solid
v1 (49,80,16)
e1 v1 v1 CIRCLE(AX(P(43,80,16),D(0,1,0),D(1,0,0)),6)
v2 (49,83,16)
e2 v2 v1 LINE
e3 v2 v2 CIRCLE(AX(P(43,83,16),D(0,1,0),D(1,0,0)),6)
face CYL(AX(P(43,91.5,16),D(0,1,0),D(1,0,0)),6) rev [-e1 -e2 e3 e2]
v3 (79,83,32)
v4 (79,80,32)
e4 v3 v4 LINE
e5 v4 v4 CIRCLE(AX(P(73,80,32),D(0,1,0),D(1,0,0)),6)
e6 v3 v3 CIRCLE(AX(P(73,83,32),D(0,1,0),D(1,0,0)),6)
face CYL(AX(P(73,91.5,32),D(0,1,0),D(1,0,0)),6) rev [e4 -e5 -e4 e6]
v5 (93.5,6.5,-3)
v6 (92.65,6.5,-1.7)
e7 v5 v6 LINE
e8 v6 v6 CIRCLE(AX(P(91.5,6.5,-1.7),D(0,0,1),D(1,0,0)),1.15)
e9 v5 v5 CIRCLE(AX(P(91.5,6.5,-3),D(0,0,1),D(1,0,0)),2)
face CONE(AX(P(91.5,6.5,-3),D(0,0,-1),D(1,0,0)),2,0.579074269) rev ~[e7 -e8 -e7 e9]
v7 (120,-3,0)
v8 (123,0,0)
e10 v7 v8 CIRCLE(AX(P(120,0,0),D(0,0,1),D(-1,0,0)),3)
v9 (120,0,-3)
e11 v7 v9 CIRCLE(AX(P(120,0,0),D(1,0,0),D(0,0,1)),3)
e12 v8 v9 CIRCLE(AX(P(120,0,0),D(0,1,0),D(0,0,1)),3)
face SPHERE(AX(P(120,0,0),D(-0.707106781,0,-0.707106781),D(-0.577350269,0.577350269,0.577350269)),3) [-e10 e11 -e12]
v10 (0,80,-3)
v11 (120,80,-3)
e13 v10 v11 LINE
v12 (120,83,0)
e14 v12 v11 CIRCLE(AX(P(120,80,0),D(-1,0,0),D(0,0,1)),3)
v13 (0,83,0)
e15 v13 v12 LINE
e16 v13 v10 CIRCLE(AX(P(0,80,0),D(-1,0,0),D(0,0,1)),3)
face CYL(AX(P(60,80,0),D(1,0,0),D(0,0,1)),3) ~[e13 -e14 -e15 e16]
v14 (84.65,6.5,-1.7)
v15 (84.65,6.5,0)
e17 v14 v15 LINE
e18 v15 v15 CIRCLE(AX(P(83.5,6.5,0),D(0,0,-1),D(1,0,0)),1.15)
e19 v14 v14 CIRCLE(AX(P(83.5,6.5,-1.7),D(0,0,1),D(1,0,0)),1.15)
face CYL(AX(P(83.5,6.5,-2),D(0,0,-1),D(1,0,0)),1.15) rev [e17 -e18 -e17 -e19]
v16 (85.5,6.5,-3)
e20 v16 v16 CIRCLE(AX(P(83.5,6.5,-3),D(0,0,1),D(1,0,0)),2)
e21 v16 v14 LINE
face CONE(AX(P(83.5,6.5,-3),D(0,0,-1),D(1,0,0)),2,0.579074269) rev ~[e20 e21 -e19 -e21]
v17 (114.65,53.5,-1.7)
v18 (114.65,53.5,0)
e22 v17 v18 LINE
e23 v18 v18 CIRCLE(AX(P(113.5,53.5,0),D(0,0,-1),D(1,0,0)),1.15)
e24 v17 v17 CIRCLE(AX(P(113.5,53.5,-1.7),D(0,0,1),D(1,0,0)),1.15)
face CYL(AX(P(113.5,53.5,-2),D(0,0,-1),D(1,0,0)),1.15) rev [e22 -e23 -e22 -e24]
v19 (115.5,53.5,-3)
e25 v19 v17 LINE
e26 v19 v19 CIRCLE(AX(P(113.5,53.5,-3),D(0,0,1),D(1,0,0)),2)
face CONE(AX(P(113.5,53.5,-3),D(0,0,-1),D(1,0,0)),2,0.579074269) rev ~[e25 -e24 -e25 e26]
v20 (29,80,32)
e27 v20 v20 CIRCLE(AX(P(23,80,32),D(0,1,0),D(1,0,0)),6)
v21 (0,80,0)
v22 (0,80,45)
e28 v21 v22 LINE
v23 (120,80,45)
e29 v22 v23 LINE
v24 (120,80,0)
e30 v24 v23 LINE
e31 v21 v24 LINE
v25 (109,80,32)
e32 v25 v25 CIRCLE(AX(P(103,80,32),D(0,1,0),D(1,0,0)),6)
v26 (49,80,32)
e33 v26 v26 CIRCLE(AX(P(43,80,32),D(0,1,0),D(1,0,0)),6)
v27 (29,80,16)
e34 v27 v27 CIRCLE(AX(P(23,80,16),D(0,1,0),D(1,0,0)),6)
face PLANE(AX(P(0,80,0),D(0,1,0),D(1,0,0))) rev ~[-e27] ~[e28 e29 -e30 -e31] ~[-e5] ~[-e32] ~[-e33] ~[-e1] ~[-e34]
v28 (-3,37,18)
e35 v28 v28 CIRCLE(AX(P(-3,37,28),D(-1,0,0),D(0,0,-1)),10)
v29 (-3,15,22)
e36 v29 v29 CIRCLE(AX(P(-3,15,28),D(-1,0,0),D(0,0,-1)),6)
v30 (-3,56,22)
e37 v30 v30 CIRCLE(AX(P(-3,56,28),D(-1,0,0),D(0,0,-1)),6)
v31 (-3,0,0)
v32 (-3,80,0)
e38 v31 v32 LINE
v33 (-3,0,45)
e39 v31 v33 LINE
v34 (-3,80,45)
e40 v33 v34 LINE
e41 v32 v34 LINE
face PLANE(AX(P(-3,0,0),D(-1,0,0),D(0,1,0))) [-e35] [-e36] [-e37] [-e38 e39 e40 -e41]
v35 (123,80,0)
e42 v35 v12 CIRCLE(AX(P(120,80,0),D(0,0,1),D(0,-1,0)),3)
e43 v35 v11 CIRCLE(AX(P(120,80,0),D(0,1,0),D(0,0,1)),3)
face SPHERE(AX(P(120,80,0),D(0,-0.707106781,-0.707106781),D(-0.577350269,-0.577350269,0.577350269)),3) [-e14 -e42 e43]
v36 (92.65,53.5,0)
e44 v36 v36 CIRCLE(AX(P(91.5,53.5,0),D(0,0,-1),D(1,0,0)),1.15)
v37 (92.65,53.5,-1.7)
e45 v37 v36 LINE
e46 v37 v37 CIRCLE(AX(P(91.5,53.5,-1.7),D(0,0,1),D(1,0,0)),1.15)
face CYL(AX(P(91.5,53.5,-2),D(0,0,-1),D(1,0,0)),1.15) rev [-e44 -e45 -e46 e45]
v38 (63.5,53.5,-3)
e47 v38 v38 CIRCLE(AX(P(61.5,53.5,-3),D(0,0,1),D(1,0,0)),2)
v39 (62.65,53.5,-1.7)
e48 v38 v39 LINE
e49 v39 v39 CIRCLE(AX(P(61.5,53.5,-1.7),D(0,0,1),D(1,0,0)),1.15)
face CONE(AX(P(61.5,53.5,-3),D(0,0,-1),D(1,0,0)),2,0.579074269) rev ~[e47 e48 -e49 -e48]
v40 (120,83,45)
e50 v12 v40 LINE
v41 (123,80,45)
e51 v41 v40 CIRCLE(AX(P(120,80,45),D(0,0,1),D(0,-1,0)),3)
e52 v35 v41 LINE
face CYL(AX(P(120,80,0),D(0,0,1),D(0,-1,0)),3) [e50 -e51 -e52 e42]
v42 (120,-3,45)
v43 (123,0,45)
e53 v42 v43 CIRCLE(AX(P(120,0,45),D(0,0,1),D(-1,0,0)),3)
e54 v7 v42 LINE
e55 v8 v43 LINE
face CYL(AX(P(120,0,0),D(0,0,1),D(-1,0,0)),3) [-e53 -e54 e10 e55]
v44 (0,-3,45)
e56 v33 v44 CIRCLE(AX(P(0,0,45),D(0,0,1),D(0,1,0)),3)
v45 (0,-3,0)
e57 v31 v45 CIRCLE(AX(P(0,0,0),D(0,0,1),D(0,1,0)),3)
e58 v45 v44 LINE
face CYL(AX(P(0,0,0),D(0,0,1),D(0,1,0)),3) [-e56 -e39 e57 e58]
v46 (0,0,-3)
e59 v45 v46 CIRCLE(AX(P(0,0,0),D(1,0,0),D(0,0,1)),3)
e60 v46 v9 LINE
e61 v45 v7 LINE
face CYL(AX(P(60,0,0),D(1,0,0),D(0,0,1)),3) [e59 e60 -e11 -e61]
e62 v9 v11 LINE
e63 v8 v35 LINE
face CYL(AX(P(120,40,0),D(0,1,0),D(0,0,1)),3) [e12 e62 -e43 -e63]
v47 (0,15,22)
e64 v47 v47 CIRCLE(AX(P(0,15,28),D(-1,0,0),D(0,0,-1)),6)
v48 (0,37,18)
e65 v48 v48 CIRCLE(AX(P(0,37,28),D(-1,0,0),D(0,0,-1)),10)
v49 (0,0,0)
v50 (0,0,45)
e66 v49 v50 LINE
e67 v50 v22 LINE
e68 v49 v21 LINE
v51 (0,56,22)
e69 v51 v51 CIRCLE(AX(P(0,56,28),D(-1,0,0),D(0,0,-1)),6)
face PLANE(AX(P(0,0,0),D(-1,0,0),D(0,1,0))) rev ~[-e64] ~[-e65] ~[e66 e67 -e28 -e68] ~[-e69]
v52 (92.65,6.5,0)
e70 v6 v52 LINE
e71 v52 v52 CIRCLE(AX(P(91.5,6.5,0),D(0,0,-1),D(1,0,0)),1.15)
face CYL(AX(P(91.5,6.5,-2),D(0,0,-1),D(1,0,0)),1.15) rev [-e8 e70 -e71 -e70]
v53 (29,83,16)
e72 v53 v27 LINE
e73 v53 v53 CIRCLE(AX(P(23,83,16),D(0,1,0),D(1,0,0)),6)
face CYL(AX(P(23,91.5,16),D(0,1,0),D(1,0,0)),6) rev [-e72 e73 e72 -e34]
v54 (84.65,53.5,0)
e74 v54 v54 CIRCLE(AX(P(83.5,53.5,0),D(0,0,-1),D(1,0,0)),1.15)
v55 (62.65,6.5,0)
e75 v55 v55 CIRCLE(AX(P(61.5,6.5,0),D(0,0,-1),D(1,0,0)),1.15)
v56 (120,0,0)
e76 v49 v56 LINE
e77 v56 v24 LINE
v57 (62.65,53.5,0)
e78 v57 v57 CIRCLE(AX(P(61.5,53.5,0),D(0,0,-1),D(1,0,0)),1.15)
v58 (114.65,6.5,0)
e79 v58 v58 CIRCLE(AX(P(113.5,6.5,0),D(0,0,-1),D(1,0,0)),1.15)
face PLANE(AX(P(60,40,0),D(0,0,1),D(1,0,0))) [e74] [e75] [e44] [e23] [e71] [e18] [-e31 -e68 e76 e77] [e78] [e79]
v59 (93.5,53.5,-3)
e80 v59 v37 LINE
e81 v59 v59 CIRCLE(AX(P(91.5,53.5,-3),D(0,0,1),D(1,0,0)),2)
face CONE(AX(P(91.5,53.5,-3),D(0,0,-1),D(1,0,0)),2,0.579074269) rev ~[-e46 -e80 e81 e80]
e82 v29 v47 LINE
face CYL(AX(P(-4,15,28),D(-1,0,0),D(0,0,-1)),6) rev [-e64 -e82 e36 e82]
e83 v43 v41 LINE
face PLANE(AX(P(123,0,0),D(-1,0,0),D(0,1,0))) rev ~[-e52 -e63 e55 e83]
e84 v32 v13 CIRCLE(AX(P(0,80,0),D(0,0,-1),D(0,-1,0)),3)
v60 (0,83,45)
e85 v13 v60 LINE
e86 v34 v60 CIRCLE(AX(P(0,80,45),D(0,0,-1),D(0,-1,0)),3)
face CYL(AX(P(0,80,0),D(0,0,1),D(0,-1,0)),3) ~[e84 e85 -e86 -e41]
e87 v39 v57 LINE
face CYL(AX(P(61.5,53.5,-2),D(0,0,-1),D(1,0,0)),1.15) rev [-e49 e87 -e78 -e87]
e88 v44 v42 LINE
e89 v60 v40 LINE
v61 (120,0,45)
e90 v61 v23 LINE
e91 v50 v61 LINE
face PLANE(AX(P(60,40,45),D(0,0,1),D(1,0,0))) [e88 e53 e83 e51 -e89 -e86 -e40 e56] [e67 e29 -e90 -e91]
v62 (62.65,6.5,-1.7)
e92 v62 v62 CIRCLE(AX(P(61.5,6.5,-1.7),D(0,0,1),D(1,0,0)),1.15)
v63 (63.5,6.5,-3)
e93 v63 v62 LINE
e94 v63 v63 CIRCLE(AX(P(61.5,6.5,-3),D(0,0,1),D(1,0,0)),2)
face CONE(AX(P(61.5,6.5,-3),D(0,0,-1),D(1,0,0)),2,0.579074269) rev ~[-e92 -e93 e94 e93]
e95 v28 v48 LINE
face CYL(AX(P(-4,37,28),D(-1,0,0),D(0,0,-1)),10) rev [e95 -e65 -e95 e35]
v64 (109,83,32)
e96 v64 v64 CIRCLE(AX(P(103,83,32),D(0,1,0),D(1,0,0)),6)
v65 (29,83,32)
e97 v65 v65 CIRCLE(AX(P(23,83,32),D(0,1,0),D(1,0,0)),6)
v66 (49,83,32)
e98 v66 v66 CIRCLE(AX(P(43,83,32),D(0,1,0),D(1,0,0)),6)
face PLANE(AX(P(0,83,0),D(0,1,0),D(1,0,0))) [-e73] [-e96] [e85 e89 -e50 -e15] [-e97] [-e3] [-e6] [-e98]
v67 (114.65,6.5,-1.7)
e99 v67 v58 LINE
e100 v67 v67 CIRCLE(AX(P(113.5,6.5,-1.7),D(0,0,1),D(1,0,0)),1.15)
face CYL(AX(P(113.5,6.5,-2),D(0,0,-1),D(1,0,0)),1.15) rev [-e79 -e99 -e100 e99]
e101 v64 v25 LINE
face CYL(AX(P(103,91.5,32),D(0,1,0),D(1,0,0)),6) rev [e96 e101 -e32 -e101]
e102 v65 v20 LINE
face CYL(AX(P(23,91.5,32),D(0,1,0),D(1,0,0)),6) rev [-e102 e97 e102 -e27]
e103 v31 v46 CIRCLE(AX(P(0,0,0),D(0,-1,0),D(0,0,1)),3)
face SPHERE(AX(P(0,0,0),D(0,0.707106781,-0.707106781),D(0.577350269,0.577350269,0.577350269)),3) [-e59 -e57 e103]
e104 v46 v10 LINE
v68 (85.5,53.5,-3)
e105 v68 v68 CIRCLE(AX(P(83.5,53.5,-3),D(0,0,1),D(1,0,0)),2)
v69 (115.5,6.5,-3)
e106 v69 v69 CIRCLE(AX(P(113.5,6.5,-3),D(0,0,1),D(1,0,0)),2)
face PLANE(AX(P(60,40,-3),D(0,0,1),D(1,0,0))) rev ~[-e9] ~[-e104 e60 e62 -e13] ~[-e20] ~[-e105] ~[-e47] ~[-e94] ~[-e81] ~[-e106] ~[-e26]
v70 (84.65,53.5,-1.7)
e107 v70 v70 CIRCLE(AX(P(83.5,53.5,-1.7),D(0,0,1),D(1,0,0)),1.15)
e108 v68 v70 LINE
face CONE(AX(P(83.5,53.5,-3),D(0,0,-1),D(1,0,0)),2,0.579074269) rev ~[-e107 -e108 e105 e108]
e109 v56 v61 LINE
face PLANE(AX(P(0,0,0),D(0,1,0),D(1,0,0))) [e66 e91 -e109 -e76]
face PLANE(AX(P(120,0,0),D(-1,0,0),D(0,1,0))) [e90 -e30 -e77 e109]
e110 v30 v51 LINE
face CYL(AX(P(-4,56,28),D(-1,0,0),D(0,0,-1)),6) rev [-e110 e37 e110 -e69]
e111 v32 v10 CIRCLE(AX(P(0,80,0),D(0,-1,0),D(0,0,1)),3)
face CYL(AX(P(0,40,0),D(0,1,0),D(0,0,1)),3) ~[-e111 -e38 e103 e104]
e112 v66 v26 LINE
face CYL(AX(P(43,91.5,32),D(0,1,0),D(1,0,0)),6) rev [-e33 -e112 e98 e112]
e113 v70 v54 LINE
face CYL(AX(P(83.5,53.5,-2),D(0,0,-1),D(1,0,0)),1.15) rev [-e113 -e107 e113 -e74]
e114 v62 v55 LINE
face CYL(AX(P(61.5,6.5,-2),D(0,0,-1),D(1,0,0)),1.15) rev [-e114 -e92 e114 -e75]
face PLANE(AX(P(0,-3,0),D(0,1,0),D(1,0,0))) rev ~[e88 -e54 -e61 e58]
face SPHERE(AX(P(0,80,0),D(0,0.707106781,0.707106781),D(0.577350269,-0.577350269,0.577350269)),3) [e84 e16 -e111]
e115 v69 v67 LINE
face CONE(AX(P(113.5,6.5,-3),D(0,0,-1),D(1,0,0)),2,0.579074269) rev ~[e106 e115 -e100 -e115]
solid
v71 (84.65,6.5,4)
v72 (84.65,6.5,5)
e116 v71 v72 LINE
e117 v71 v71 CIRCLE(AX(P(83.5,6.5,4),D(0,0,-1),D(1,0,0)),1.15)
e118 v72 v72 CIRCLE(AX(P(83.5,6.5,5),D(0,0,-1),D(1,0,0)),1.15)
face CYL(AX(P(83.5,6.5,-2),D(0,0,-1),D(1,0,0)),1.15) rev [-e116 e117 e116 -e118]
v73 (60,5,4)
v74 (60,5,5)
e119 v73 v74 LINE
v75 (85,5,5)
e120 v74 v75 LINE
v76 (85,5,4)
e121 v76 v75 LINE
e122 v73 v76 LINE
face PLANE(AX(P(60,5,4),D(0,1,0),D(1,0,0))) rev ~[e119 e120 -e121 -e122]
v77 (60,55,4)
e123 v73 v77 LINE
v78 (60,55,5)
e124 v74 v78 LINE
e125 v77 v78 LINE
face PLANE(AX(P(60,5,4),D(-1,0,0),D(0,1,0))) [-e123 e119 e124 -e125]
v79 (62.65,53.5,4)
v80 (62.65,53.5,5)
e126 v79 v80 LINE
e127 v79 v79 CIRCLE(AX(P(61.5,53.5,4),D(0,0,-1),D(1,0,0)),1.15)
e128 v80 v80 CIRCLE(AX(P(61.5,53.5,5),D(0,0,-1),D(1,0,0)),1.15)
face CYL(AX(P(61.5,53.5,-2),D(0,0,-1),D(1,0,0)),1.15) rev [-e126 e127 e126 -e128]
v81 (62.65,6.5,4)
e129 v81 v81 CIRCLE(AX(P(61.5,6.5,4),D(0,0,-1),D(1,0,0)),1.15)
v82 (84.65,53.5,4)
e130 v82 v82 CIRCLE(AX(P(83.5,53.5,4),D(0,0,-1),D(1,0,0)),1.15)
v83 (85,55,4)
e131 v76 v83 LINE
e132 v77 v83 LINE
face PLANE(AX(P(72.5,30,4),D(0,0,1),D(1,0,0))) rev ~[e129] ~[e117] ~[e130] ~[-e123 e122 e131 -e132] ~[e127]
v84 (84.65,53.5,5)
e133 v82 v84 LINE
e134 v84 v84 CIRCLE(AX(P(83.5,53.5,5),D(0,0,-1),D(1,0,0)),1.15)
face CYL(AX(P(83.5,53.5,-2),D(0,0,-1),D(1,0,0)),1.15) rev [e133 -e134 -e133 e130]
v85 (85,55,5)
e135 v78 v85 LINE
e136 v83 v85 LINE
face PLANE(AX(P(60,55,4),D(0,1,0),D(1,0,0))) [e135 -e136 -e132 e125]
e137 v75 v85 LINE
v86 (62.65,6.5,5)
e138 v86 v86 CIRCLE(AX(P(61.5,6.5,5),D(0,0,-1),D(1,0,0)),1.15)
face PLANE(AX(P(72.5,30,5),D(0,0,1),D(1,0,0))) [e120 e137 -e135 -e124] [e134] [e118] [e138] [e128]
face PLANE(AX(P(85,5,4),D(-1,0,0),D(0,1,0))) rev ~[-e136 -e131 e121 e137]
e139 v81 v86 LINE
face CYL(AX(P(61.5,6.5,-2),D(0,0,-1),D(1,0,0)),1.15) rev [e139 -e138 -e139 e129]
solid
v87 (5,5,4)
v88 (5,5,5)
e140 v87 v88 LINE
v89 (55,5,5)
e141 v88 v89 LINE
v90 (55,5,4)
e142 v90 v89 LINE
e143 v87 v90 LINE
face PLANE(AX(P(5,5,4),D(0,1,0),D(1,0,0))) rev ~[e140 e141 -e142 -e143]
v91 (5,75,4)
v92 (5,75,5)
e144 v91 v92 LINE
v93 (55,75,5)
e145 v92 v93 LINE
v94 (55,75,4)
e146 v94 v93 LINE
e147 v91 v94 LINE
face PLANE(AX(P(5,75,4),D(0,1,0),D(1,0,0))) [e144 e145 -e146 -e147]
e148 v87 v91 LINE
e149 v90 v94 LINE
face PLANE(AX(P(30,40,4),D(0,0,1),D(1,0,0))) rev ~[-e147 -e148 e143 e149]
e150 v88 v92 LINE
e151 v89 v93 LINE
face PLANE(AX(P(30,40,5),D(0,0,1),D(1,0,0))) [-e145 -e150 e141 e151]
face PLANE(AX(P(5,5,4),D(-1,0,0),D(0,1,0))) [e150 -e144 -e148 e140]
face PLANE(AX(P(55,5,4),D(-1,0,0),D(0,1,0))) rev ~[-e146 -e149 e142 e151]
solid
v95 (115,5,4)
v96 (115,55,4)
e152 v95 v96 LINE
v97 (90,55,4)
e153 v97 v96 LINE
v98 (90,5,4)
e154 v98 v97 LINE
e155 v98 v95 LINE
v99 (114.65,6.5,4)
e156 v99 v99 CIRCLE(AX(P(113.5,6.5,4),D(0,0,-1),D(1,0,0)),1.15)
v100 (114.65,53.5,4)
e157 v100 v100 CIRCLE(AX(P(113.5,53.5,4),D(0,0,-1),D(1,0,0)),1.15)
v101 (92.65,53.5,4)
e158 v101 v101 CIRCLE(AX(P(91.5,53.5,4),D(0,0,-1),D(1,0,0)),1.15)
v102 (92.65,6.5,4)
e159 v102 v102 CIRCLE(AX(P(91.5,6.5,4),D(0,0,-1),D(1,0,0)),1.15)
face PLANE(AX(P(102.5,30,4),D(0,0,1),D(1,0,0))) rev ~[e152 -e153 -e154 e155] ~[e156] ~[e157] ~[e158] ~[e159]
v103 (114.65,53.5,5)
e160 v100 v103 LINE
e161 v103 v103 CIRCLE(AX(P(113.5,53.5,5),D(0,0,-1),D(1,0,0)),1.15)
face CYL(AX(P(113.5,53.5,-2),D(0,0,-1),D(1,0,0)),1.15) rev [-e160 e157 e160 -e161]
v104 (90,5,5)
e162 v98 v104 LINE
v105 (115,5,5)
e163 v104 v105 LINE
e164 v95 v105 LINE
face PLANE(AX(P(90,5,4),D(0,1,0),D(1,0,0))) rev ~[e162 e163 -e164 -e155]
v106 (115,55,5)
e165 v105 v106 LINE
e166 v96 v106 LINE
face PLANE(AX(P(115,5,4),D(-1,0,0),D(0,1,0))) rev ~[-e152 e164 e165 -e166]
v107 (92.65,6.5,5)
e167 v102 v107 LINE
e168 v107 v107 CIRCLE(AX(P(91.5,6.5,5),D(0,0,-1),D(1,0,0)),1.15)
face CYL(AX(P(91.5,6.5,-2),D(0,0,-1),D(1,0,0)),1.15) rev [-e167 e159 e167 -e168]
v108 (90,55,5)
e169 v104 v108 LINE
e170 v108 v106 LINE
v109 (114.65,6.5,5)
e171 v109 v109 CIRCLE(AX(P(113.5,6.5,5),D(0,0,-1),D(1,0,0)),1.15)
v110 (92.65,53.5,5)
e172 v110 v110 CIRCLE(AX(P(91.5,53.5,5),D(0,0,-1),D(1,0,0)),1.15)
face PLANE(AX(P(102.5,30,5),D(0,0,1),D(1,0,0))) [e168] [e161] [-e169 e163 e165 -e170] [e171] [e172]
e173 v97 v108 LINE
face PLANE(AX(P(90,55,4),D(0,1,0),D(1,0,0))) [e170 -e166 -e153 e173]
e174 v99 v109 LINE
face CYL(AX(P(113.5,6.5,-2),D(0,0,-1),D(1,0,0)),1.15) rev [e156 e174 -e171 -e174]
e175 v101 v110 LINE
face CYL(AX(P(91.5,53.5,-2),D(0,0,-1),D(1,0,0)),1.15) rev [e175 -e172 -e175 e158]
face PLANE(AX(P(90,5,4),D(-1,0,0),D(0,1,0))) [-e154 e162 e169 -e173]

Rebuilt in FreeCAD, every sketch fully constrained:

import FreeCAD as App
import Part
import Sketcher
from FreeCAD import Vector
Q = App.Units.Quantity


def faces_at(feature, points):
    """Names of the faces that lie closest to the given points."""
    faces = feature.Shape.Faces
    near = lambda p: min(range(len(faces)), key=lambda i: faces[i].distToShape(Part.Vertex(*p))[0])
    return sorted({f"Face{near(p) + 1}" for p in points})


def add_polygon(sketch, points):
    """Adds a closed chain of lines whose ends are joined by coincident constraints."""
    first, n = sketch.GeometryCount, len(points)
    for a, b in zip(points, points[1:] + points[:1]):
        sketch.addGeometry(Part.LineSegment(App.Vector(*a, 0), App.Vector(*b, 0)), False)
    for i in range(n):
        sketch.addConstraint(Sketcher.Constraint("Coincident", first + i, 2, first + (i + 1) % n, 1))

doc = App.newDocument("Part")
body = doc.addObject("PartDesign::Body", "Body")

# Sketch on XY plane
sketch1 = body.newObject("Sketcher::SketchObject", "Sketch")
sketch1.AttachmentSupport = (doc.getObject("XY_Plane"), [""])
sketch1.MapMode = "FlatFace"
sketch1.AttachmentOffset = App.Placement(Vector(0, 0, 4), App.Rotation())
add_polygon(sketch1, [(5, 75), (5, 5), (55, 5), (55, 75)])  # lines 0-3
sketch1.addConstraint([
    Sketcher.Constraint("Vertical", 0),
    Sketcher.Constraint("Horizontal", 1),
    Sketcher.Constraint("Vertical", 2),
    Sketcher.Constraint("Horizontal", 3),
    Sketcher.Constraint("DistanceX", 1, 1, 1, 2, Q("50 mm")),
    Sketcher.Constraint("DistanceY", 0, 2, 0, 1, Q("70 mm")),
    Sketcher.Constraint("DistanceX", -1, 1, 0, 2, Q("5 mm")),
    Sketcher.Constraint("DistanceY", -1, 1, 0, 2, Q("5 mm")),
])
pad1 = body.newObject("PartDesign::Pad", "Pad")
pad1.Profile = sketch1
pad1.Length = 1
body2 = doc.addObject("PartDesign::Body", "Body001")

# Sketch on XY plane
sketch2 = body2.newObject("Sketcher::SketchObject", "Sketch001")
sketch2.AttachmentSupport = (doc.getObject("XY_Plane001"), [""])
sketch2.MapMode = "FlatFace"
sketch2.addGeometry(Part.Circle(Vector(16, -16, 0), Vector(0, 0, 1), 6), False)
sketch2.addConstraint([
    Sketcher.Constraint("Diameter", 0, Q("12 mm")),
    Sketcher.Constraint("DistanceX", -1, 1, 0, 3, Q("16 mm")),
    Sketcher.Constraint("DistanceY", 0, 3, -1, 1, Q("16 mm")),
])
pad2 = body2.newObject("PartDesign::Pad", "Pad001")
pad2.Profile = sketch2
pad2.Length = 20
body3 = doc.addObject("PartDesign::Body", "Body002")
body3.AllowCompound = True

# Sketch on XY plane
sketch3 = body3.newObject("Sketcher::SketchObject", "Sketch002")
sketch3.AttachmentSupport = (doc.getObject("XY_Plane002"), [""])
sketch3.MapMode = "FlatFace"
sketch3.addGeometry(Part.Circle(Vector(16, 0, 0), Vector(0, 0, 1), 6), False)
sketch3.addConstraint([
    Sketcher.Constraint("PointOnObject", 0, 3, -1),
    Sketcher.Constraint("Diameter", 0, Q("12 mm")),
    Sketcher.Constraint("DistanceX", -1, 1, 0, 3, Q("16 mm")),
])
pad3 = body3.newObject("PartDesign::Pad", "Pad002")
pad3.Profile = sketch3
pad3.Length = 20
doc.recompute()

boolean = body3.newObject("PartDesign::Boolean", "Boolean")
boolean.Type = "Fuse"
boolean.addObjects([body2])
body4 = doc.addObject("PartDesign::Body", "Body003")
body4.AllowCompound = True
doc.recompute()

body3.Placement = App.Placement(Vector(27, 0, 0), App.Rotation(Vector(0, 0, 1), 0))
boolean2 = body4.newObject("PartDesign::Boolean", "Boolean001")
boolean2.Type = "Fuse"
boolean2.addObjects([body3])
body5 = doc.addObject("PartDesign::Body", "Body004")

# Sketch on XY plane
sketch4 = body5.newObject("Sketcher::SketchObject", "Sketch003")
sketch4.AttachmentSupport = (doc.getObject("XY_Plane004"), [""])
sketch4.MapMode = "FlatFace"
sketch4.addGeometry(Part.Circle(Vector(0, -16, 0), Vector(0, 0, 1), 6), False)
sketch4.addConstraint([
    Sketcher.Constraint("PointOnObject", 0, 3, -2),
    Sketcher.Constraint("Diameter", 0, Q("12 mm")),
    Sketcher.Constraint("DistanceY", 0, 3, -1, 1, Q("16 mm")),
])
pad4 = body5.newObject("PartDesign::Pad", "Pad003")
pad4.Profile = sketch4
pad4.Length = 20
body6 = doc.addObject("PartDesign::Body", "Body005")
body6.AllowCompound = True

# Sketch on XY plane
sketch5 = body6.newObject("Sketcher::SketchObject", "Sketch004")
sketch5.AttachmentSupport = (doc.getObject("XY_Plane005"), [""])
sketch5.MapMode = "FlatFace"
sketch5.addGeometry(Part.Circle(Vector(0, 0, 0), Vector(0, 0, 1), 6), False)
sketch5.addConstraint([
    Sketcher.Constraint("Coincident", 0, 3, -1, 1),
    Sketcher.Constraint("Diameter", 0, Q("12 mm")),
])
pad5 = body6.newObject("PartDesign::Pad", "Pad004")
pad5.Profile = sketch5
pad5.Length = 20
doc.recompute()

boolean3 = body6.newObject("PartDesign::Boolean", "Boolean002")
boolean3.Type = "Fuse"
boolean3.addObjects([body5])
body7 = doc.addObject("PartDesign::Body", "Body006")
body7.AllowCompound = True
doc.recompute()

body6.Placement = App.Placement(Vector(23, 0, 0), App.Rotation(Vector(0, 0, 1), 0))
boolean4 = body7.newObject("PartDesign::Boolean", "Boolean003")
boolean4.Type = "Fuse"
boolean4.addObjects([body6])
doc.recompute()

boolean5 = body7.newObject("PartDesign::Boolean", "Boolean004")
boolean5.Type = "Fuse"
boolean5.addObjects([body4])
body8 = doc.addObject("PartDesign::Body", "Body007")
body8.AllowCompound = True
doc.recompute()

body7.Placement = App.Placement(Vector(0, 7, 0), App.Rotation(Vector(0, 0, 1), 0))
boolean6 = body8.newObject("PartDesign::Boolean", "Boolean005")
boolean6.Type = "Fuse"
boolean6.addObjects([body7])
body9 = doc.addObject("PartDesign::Body", "Body008")

# Sketch on XY plane
sketch6 = body9.newObject("Sketcher::SketchObject", "Sketch005")
sketch6.AttachmentSupport = (doc.getObject("XY_Plane008"), [""])
sketch6.MapMode = "FlatFace"
sketch6.addGeometry(Part.Circle(Vector(103, -8, 0), Vector(0, 0, 1), 6), False)
sketch6.addConstraint([
    Sketcher.Constraint("Diameter", 0, Q("12 mm")),
    Sketcher.Constraint("DistanceX", -1, 1, 0, 3, Q("103 mm")),
    Sketcher.Constraint("DistanceY", 0, 3, -1, 1, Q("8 mm")),
])
pad6 = body9.newObject("PartDesign::Pad", "Pad005")
pad6.Profile = sketch6
pad6.Length = 20
body10 = doc.addObject("PartDesign::Body", "Body009")
body10.AllowCompound = True

# Sketch on XY plane
sketch7 = body10.newObject("Sketcher::SketchObject", "Sketch006")
sketch7.AttachmentSupport = (doc.getObject("XY_Plane009"), [""])
sketch7.MapMode = "FlatFace"
sketch7.addGeometry(Part.Circle(Vector(73, -8, 0), Vector(0, 0, 1), 6), False)
sketch7.addConstraint([
    Sketcher.Constraint("Diameter", 0, Q("12 mm")),
    Sketcher.Constraint("DistanceX", -1, 1, 0, 3, Q("73 mm")),
    Sketcher.Constraint("DistanceY", 0, 3, -1, 1, Q("8 mm")),
])
pad7 = body10.newObject("PartDesign::Pad", "Pad006")
pad7.Profile = sketch7
pad7.Length = 20
doc.recompute()

boolean7 = body10.newObject("PartDesign::Boolean", "Boolean006")
boolean7.Type = "Fuse"
boolean7.addObjects([body9])
body11 = doc.addObject("PartDesign::Body", "Body010")
body11.AllowCompound = True
doc.recompute()

body10.Placement = App.Placement(Vector(0, 15, 0), App.Rotation(Vector(0, 0, 1), 0))
boolean8 = body11.newObject("PartDesign::Boolean", "Boolean007")
boolean8.Type = "Fuse"
boolean8.addObjects([body10])
doc.recompute()

boolean9 = body11.newObject("PartDesign::Boolean", "Boolean008")
boolean9.Type = "Fuse"
boolean9.addObjects([body8])
body12 = doc.addObject("PartDesign::Body", "Body011")
body12.AllowCompound = True
doc.recompute()

body11.Placement = App.Placement(Vector(0, 0, 0), App.Rotation(Vector(1, 0, 0), 90))
boolean10 = body12.newObject("PartDesign::Boolean", "Boolean009")
boolean10.Type = "Fuse"
boolean10.addObjects([body11])
body13 = doc.addObject("PartDesign::Body", "Body012")
body13.AllowCompound = True
doc.recompute()

body12.Placement = App.Placement(Vector(0, 91.5, 25), App.Rotation(Vector(0, 0, 1), 0))
boolean11 = body13.newObject("PartDesign::Boolean", "Boolean010")
boolean11.Type = "Fuse"
boolean11.addObjects([body12])
body14 = doc.addObject("PartDesign::Body", "Body013")

# Sketch on XY plane
sketch8 = body14.newObject("Sketcher::SketchObject", "Sketch007")
sketch8.AttachmentSupport = (doc.getObject("XY_Plane013"), [""])
sketch8.MapMode = "FlatFace"
sketch8.addGeometry(Part.Circle(Vector(0, 0, 0), Vector(0, 0, 1), 6), False)
sketch8.addConstraint([
    Sketcher.Constraint("Coincident", 0, 3, -1, 1),
    Sketcher.Constraint("Diameter", 0, Q("12 mm")),
])
pad8 = body14.newObject("PartDesign::Pad", "Pad007")
pad8.Profile = sketch8
pad8.Length = 20
body15 = doc.addObject("PartDesign::Body", "Body014")
doc.recompute()

body14.Placement = App.Placement(Vector(0, 0, 0), App.Rotation(Vector(0, 1, 0), 90))
boolean12 = body15.newObject("PartDesign::Boolean", "Boolean011")
boolean12.Type = "Fuse"
boolean12.addObjects([body14])
body16 = doc.addObject("PartDesign::Body", "Body015")
doc.recompute()

body15.Placement = App.Placement(Vector(-4, 56, 20), App.Rotation(Vector(0, 0, 1), 0))
boolean13 = body16.newObject("PartDesign::Boolean", "Boolean012")
boolean13.Type = "Fuse"
boolean13.addObjects([body15])
body17 = doc.addObject("PartDesign::Body", "Body016")

# Sketch on XY plane
sketch9 = body17.newObject("Sketcher::SketchObject", "Sketch008")
sketch9.AttachmentSupport = (doc.getObject("XY_Plane016"), [""])
sketch9.MapMode = "FlatFace"
sketch9.addGeometry(Part.Circle(Vector(0, 0, 0), Vector(0, 0, 1), 10), False)
sketch9.addConstraint([
    Sketcher.Constraint("Coincident", 0, 3, -1, 1),
    Sketcher.Constraint("Diameter", 0, Q("20 mm")),
])
pad9 = body17.newObject("PartDesign::Pad", "Pad008")
pad9.Profile = sketch9
pad9.Length = 20
body18 = doc.addObject("PartDesign::Body", "Body017")
doc.recompute()

body17.Placement = App.Placement(Vector(0, 0, 0), App.Rotation(Vector(0, 1, 0), 90))
boolean14 = body18.newObject("PartDesign::Boolean", "Boolean013")
boolean14.Type = "Fuse"
boolean14.addObjects([body17])
body19 = doc.addObject("PartDesign::Body", "Body018")
doc.recompute()

body18.Placement = App.Placement(Vector(-4, 37, 20), App.Rotation(Vector(0, 0, 1), 0))
boolean15 = body19.newObject("PartDesign::Boolean", "Boolean014")
boolean15.Type = "Fuse"
boolean15.addObjects([body18])
body20 = doc.addObject("PartDesign::Body", "Body019")

# Sketch on XY plane
sketch10 = body20.newObject("Sketcher::SketchObject", "Sketch009")
sketch10.AttachmentSupport = (doc.getObject("XY_Plane019"), [""])
sketch10.MapMode = "FlatFace"
sketch10.addGeometry(Part.Circle(Vector(0, 0, 0), Vector(0, 0, 1), 6), False)
sketch10.addConstraint([
    Sketcher.Constraint("Coincident", 0, 3, -1, 1),
    Sketcher.Constraint("Diameter", 0, Q("12 mm")),
])
pad10 = body20.newObject("PartDesign::Pad", "Pad009")
pad10.Profile = sketch10
pad10.Length = 30
body21 = doc.addObject("PartDesign::Body", "Body020")
doc.recompute()

body20.Placement = App.Placement(Vector(0, 0, 0), App.Rotation(Vector(0, 1, 0), 90))
boolean16 = body21.newObject("PartDesign::Boolean", "Boolean015")
boolean16.Type = "Fuse"
boolean16.addObjects([body20])
body22 = doc.addObject("PartDesign::Body", "Body021")
body22.AllowCompound = True
doc.recompute()

body21.Placement = App.Placement(Vector(-4, 15, 20), App.Rotation(Vector(0, 0, 1), 0))
boolean17 = body22.newObject("PartDesign::Boolean", "Boolean016")
boolean17.Type = "Fuse"
boolean17.addObjects([body21])
doc.recompute()

boolean18 = body22.newObject("PartDesign::Boolean", "Boolean017")
boolean18.Type = "Fuse"
boolean18.addObjects([body16])
doc.recompute()

boolean19 = body22.newObject("PartDesign::Boolean", "Boolean018")
boolean19.Type = "Fuse"
boolean19.addObjects([body19])
body23 = doc.addObject("PartDesign::Body", "Body022")
body23.AllowCompound = True
doc.recompute()

body22.Placement = App.Placement(Vector(0, 0, 8), App.Rotation(Vector(0, 0, 1), 0))
boolean20 = body23.newObject("PartDesign::Boolean", "Boolean019")
boolean20.Type = "Fuse"
boolean20.addObjects([body22])
doc.recompute()

boolean21 = body23.newObject("PartDesign::Boolean", "Boolean020")
boolean21.Type = "Fuse"
boolean21.addObjects([body13])
body24 = doc.addObject("PartDesign::Body", "Body023")

# Sketch on XZ plane
sketch11 = body24.newObject("Sketcher::SketchObject", "Sketch010")
sketch11.AttachmentSupport = (doc.getObject("XZ_Plane023"), [""])
sketch11.MapMode = "FlatFace"
add_polygon(sketch11, [(0, 0), (2, 0), (1.1, 1.3), (0, 1.3)])  # lines 0-3
sketch11.addConstraint([
    Sketcher.Constraint("Horizontal", 0),
    Sketcher.Constraint("Horizontal", 2),
    Sketcher.Constraint("Vertical", 3),
    Sketcher.Constraint("Coincident", 3, 2, -1, 1),
    Sketcher.Constraint("DistanceX", 0, 1, 0, 2, Q("2 mm")),
    Sketcher.Constraint("DistanceY", 3, 2, 3, 1, Q("1.3 mm")),
    Sketcher.Constraint("DistanceX", 2, 2, 2, 1, Q("1.15 mm")),
])
revolution = body24.newObject("PartDesign::Revolution", "Revolution")
revolution.Profile = sketch11
revolution.ReferenceAxis = (sketch11, ["V_Axis"])
revolution.Angle = 360
body25 = doc.addObject("PartDesign::Body", "Body024")

# Sketch on XY plane
sketch12 = body25.newObject("Sketcher::SketchObject", "Sketch011")
sketch12.AttachmentSupport = (doc.getObject("XY_Plane024"), [""])
sketch12.MapMode = "FlatFace"
sketch12.AttachmentOffset = App.Placement(Vector(0, 0, 1), App.Rotation())
sketch12.addGeometry(Part.Circle(Vector(0, 0, 0), Vector(0, 0, 1), 1.1), False)
sketch12.addConstraint([
    Sketcher.Constraint("Coincident", 0, 3, -1, 1),
    Sketcher.Constraint("Diameter", 0, Q("2.3 mm")),
])
pad11 = body25.newObject("PartDesign::Pad", "Pad010")
pad11.Profile = sketch12
pad11.Length = 15
doc.recompute()

boolean22 = body25.newObject("PartDesign::Boolean", "Boolean021")
boolean22.Type = "Fuse"
boolean22.addObjects([body24])
body26 = doc.addObject("PartDesign::Body", "Body025")
doc.recompute()

body25.Placement = App.Placement(Vector(22, 0, 0), App.Rotation(Vector(0, 0, 1), 0))
boolean23 = body26.newObject("PartDesign::Boolean", "Boolean022")
boolean23.Type = "Fuse"
boolean23.addObjects([body25])
body27 = doc.addObject("PartDesign::Body", "Body026")

# Sketch on XZ plane
sketch13 = body27.newObject("Sketcher::SketchObject", "Sketch012")
sketch13.AttachmentSupport = (doc.getObject("XZ_Plane026"), [""])
sketch13.MapMode = "FlatFace"
add_polygon(sketch13, [(0, 0), (2, 0), (1.1, 1.3), (0, 1.3)])  # lines 0-3
sketch13.addConstraint([
    Sketcher.Constraint("Horizontal", 0),
    Sketcher.Constraint("Horizontal", 2),
    Sketcher.Constraint("Vertical", 3),
    Sketcher.Constraint("Coincident", 3, 2, -1, 1),
    Sketcher.Constraint("DistanceX", 0, 1, 0, 2, Q("2 mm")),
    Sketcher.Constraint("DistanceY", 3, 2, 3, 1, Q("1.3 mm")),
    Sketcher.Constraint("DistanceX", 2, 2, 2, 1, Q("1.15 mm")),
])
revolution2 = body27.newObject("PartDesign::Revolution", "Revolution001")
revolution2.Profile = sketch13
revolution2.ReferenceAxis = (sketch13, ["V_Axis"])
revolution2.Angle = 360
body28 = doc.addObject("PartDesign::Body", "Body027")
body28.AllowCompound = True

# Sketch on XY plane
sketch14 = body28.newObject("Sketcher::SketchObject", "Sketch013")
sketch14.AttachmentSupport = (doc.getObject("XY_Plane027"), [""])
sketch14.MapMode = "FlatFace"
sketch14.AttachmentOffset = App.Placement(Vector(0, 0, 1), App.Rotation())
sketch14.addGeometry(Part.Circle(Vector(0, 0, 0), Vector(0, 0, 1), 1.1), False)
sketch14.addConstraint([
    Sketcher.Constraint("Coincident", 0, 3, -1, 1),
    Sketcher.Constraint("Diameter", 0, Q("2.3 mm")),
])
pad12 = body28.newObject("PartDesign::Pad", "Pad011")
pad12.Profile = sketch14
pad12.Length = 15
doc.recompute()

boolean24 = body28.newObject("PartDesign::Boolean", "Boolean023")
boolean24.Type = "Fuse"
boolean24.addObjects([body27])
doc.recompute()

boolean25 = body28.newObject("PartDesign::Boolean", "Boolean024")
boolean25.Type = "Fuse"
boolean25.addObjects([body26])
body29 = doc.addObject("PartDesign::Body", "Body028")
body29.AllowCompound = True
doc.recompute()

body28.Placement = App.Placement(Vector(0, -47, 0), App.Rotation(Vector(0, 0, 1), 0))
boolean26 = body29.newObject("PartDesign::Boolean", "Boolean025")
boolean26.Type = "Fuse"
boolean26.addObjects([body28])
body30 = doc.addObject("PartDesign::Body", "Body029")

# Sketch on XZ plane
sketch15 = body30.newObject("Sketcher::SketchObject", "Sketch014")
sketch15.AttachmentSupport = (doc.getObject("XZ_Plane029"), [""])
sketch15.MapMode = "FlatFace"
add_polygon(sketch15, [(0, 0), (2, 0), (1.1, 1.3), (0, 1.3)])  # lines 0-3
sketch15.addConstraint([
    Sketcher.Constraint("Horizontal", 0),
    Sketcher.Constraint("Horizontal", 2),
    Sketcher.Constraint("Vertical", 3),
    Sketcher.Constraint("Coincident", 3, 2, -1, 1),
    Sketcher.Constraint("DistanceX", 0, 1, 0, 2, Q("2 mm")),
    Sketcher.Constraint("DistanceY", 3, 2, 3, 1, Q("1.3 mm")),
    Sketcher.Constraint("DistanceX", 2, 2, 2, 1, Q("1.15 mm")),
])
revolution3 = body30.newObject("PartDesign::Revolution", "Revolution002")
revolution3.Profile = sketch15
revolution3.ReferenceAxis = (sketch15, ["V_Axis"])
revolution3.Angle = 360
body31 = doc.addObject("PartDesign::Body", "Body030")

# Sketch on XY plane
sketch16 = body31.newObject("Sketcher::SketchObject", "Sketch015")
sketch16.AttachmentSupport = (doc.getObject("XY_Plane030"), [""])
sketch16.MapMode = "FlatFace"
sketch16.AttachmentOffset = App.Placement(Vector(0, 0, 1), App.Rotation())
sketch16.addGeometry(Part.Circle(Vector(0, 0, 0), Vector(0, 0, 1), 1.1), False)
sketch16.addConstraint([
    Sketcher.Constraint("Coincident", 0, 3, -1, 1),
    Sketcher.Constraint("Diameter", 0, Q("2.3 mm")),
])
pad13 = body31.newObject("PartDesign::Pad", "Pad012")
pad13.Profile = sketch16
pad13.Length = 15
doc.recompute()

boolean27 = body31.newObject("PartDesign::Boolean", "Boolean026")
boolean27.Type = "Fuse"
boolean27.addObjects([body30])
body32 = doc.addObject("PartDesign::Body", "Body031")
doc.recompute()

body31.Placement = App.Placement(Vector(22, 0, 0), App.Rotation(Vector(0, 0, 1), 0))
boolean28 = body32.newObject("PartDesign::Boolean", "Boolean027")
boolean28.Type = "Fuse"
boolean28.addObjects([body31])
body33 = doc.addObject("PartDesign::Body", "Body032")

# Sketch on XZ plane
sketch17 = body33.newObject("Sketcher::SketchObject", "Sketch016")
sketch17.AttachmentSupport = (doc.getObject("XZ_Plane032"), [""])
sketch17.MapMode = "FlatFace"
add_polygon(sketch17, [(0, 0), (2, 0), (1.1, 1.3), (0, 1.3)])  # lines 0-3
sketch17.addConstraint([
    Sketcher.Constraint("Horizontal", 0),
    Sketcher.Constraint("Horizontal", 2),
    Sketcher.Constraint("Vertical", 3),
    Sketcher.Constraint("Coincident", 3, 2, -1, 1),
    Sketcher.Constraint("DistanceX", 0, 1, 0, 2, Q("2 mm")),
    Sketcher.Constraint("DistanceY", 3, 2, 3, 1, Q("1.3 mm")),
    Sketcher.Constraint("DistanceX", 2, 2, 2, 1, Q("1.15 mm")),
])
revolution4 = body33.newObject("PartDesign::Revolution", "Revolution003")
revolution4.Profile = sketch17
revolution4.ReferenceAxis = (sketch17, ["V_Axis"])
revolution4.Angle = 360
body34 = doc.addObject("PartDesign::Body", "Body033")
body34.AllowCompound = True

# Sketch on XY plane
sketch18 = body34.newObject("Sketcher::SketchObject", "Sketch017")
sketch18.AttachmentSupport = (doc.getObject("XY_Plane033"), [""])
sketch18.MapMode = "FlatFace"
sketch18.AttachmentOffset = App.Placement(Vector(0, 0, 1), App.Rotation())
sketch18.addGeometry(Part.Circle(Vector(0, 0, 0), Vector(0, 0, 1), 1.1), False)
sketch18.addConstraint([
    Sketcher.Constraint("Coincident", 0, 3, -1, 1),
    Sketcher.Constraint("Diameter", 0, Q("2.3 mm")),
])
pad14 = body34.newObject("PartDesign::Pad", "Pad013")
pad14.Profile = sketch18
pad14.Length = 15
doc.recompute()

boolean29 = body34.newObject("PartDesign::Boolean", "Boolean028")
boolean29.Type = "Fuse"
boolean29.addObjects([body33])
doc.recompute()

boolean30 = body34.newObject("PartDesign::Boolean", "Boolean029")
boolean30.Type = "Fuse"
boolean30.addObjects([body32])
doc.recompute()

boolean31 = body34.newObject("PartDesign::Boolean", "Boolean030")
boolean31.Type = "Fuse"
boolean31.addObjects([body29])
body35 = doc.addObject("PartDesign::Body", "Body034")
body35.AllowCompound = True
doc.recompute()

body34.Placement = App.Placement(Vector(61.5, 53.5, -3), App.Rotation(Vector(0, 0, 1), 0))
boolean32 = body35.newObject("PartDesign::Boolean", "Boolean031")
boolean32.Type = "Fuse"
boolean32.addObjects([body34])
body36 = doc.addObject("PartDesign::Body", "Body035")

# Sketch on XZ plane
sketch19 = body36.newObject("Sketcher::SketchObject", "Sketch018")
sketch19.AttachmentSupport = (doc.getObject("XZ_Plane035"), [""])
sketch19.MapMode = "FlatFace"
add_polygon(sketch19, [(0, 0), (2, 0), (1.1, 1.3), (0, 1.3)])  # lines 0-3
sketch19.addConstraint([
    Sketcher.Constraint("Horizontal", 0),
    Sketcher.Constraint("Horizontal", 2),
    Sketcher.Constraint("Vertical", 3),
    Sketcher.Constraint("Coincident", 3, 2, -1, 1),
    Sketcher.Constraint("DistanceX", 0, 1, 0, 2, Q("2 mm")),
    Sketcher.Constraint("DistanceY", 3, 2, 3, 1, Q("1.3 mm")),
    Sketcher.Constraint("DistanceX", 2, 2, 2, 1, Q("1.15 mm")),
])
revolution5 = body36.newObject("PartDesign::Revolution", "Revolution004")
revolution5.Profile = sketch19
revolution5.ReferenceAxis = (sketch19, ["V_Axis"])
revolution5.Angle = 360
body37 = doc.addObject("PartDesign::Body", "Body036")

# Sketch on XY plane
sketch20 = body37.newObject("Sketcher::SketchObject", "Sketch019")
sketch20.AttachmentSupport = (doc.getObject("XY_Plane036"), [""])
sketch20.MapMode = "FlatFace"
sketch20.AttachmentOffset = App.Placement(Vector(0, 0, 1), App.Rotation())
sketch20.addGeometry(Part.Circle(Vector(0, 0, 0), Vector(0, 0, 1), 1.1), False)
sketch20.addConstraint([
    Sketcher.Constraint("Coincident", 0, 3, -1, 1),
    Sketcher.Constraint("Diameter", 0, Q("2.3 mm")),
])
pad15 = body37.newObject("PartDesign::Pad", "Pad014")
pad15.Profile = sketch20
pad15.Length = 15
doc.recompute()

boolean33 = body37.newObject("PartDesign::Boolean", "Boolean032")
boolean33.Type = "Fuse"
boolean33.addObjects([body36])
body38 = doc.addObject("PartDesign::Body", "Body037")
doc.recompute()

body37.Placement = App.Placement(Vector(22, 0, 0), App.Rotation(Vector(0, 0, 1), 0))
boolean34 = body38.newObject("PartDesign::Boolean", "Boolean033")
boolean34.Type = "Fuse"
boolean34.addObjects([body37])
body39 = doc.addObject("PartDesign::Body", "Body038")

# Sketch on XZ plane
sketch21 = body39.newObject("Sketcher::SketchObject", "Sketch020")
sketch21.AttachmentSupport = (doc.getObject("XZ_Plane038"), [""])
sketch21.MapMode = "FlatFace"
add_polygon(sketch21, [(0, 0), (2, 0), (1.1, 1.3), (0, 1.3)])  # lines 0-3
sketch21.addConstraint([
    Sketcher.Constraint("Horizontal", 0),
    Sketcher.Constraint("Horizontal", 2),
    Sketcher.Constraint("Vertical", 3),
    Sketcher.Constraint("Coincident", 3, 2, -1, 1),
    Sketcher.Constraint("DistanceX", 0, 1, 0, 2, Q("2 mm")),
    Sketcher.Constraint("DistanceY", 3, 2, 3, 1, Q("1.3 mm")),
    Sketcher.Constraint("DistanceX", 2, 2, 2, 1, Q("1.15 mm")),
])
revolution6 = body39.newObject("PartDesign::Revolution", "Revolution005")
revolution6.Profile = sketch21
revolution6.ReferenceAxis = (sketch21, ["V_Axis"])
revolution6.Angle = 360
body40 = doc.addObject("PartDesign::Body", "Body039")
body40.AllowCompound = True

# Sketch on XY plane
sketch22 = body40.newObject("Sketcher::SketchObject", "Sketch021")
sketch22.AttachmentSupport = (doc.getObject("XY_Plane039"), [""])
sketch22.MapMode = "FlatFace"
sketch22.AttachmentOffset = App.Placement(Vector(0, 0, 1), App.Rotation())
sketch22.addGeometry(Part.Circle(Vector(0, 0, 0), Vector(0, 0, 1), 1.1), False)
sketch22.addConstraint([
    Sketcher.Constraint("Coincident", 0, 3, -1, 1),
    Sketcher.Constraint("Diameter", 0, Q("2.3 mm")),
])
pad16 = body40.newObject("PartDesign::Pad", "Pad015")
pad16.Profile = sketch22
pad16.Length = 15
doc.recompute()

boolean35 = body40.newObject("PartDesign::Boolean", "Boolean034")
boolean35.Type = "Fuse"
boolean35.addObjects([body39])
doc.recompute()

boolean36 = body40.newObject("PartDesign::Boolean", "Boolean035")
boolean36.Type = "Fuse"
boolean36.addObjects([body38])
body41 = doc.addObject("PartDesign::Body", "Body040")
body41.AllowCompound = True
doc.recompute()

body40.Placement = App.Placement(Vector(0, -47, 0), App.Rotation(Vector(0, 0, 1), 0))
boolean37 = body41.newObject("PartDesign::Boolean", "Boolean036")
boolean37.Type = "Fuse"
boolean37.addObjects([body40])
body42 = doc.addObject("PartDesign::Body", "Body041")

# Sketch on XZ plane
sketch23 = body42.newObject("Sketcher::SketchObject", "Sketch022")
sketch23.AttachmentSupport = (doc.getObject("XZ_Plane041"), [""])
sketch23.MapMode = "FlatFace"
add_polygon(sketch23, [(0, 0), (2, 0), (1.1, 1.3), (0, 1.3)])  # lines 0-3
sketch23.addConstraint([
    Sketcher.Constraint("Horizontal", 0),
    Sketcher.Constraint("Horizontal", 2),
    Sketcher.Constraint("Vertical", 3),
    Sketcher.Constraint("Coincident", 3, 2, -1, 1),
    Sketcher.Constraint("DistanceX", 0, 1, 0, 2, Q("2 mm")),
    Sketcher.Constraint("DistanceY", 3, 2, 3, 1, Q("1.3 mm")),
    Sketcher.Constraint("DistanceX", 2, 2, 2, 1, Q("1.15 mm")),
])
revolution7 = body42.newObject("PartDesign::Revolution", "Revolution006")
revolution7.Profile = sketch23
revolution7.ReferenceAxis = (sketch23, ["V_Axis"])
revolution7.Angle = 360
body43 = doc.addObject("PartDesign::Body", "Body042")

# Sketch on XY plane
sketch24 = body43.newObject("Sketcher::SketchObject", "Sketch023")
sketch24.AttachmentSupport = (doc.getObject("XY_Plane042"), [""])
sketch24.MapMode = "FlatFace"
sketch24.AttachmentOffset = App.Placement(Vector(0, 0, 1), App.Rotation())
sketch24.addGeometry(Part.Circle(Vector(0, 0, 0), Vector(0, 0, 1), 1.1), False)
sketch24.addConstraint([
    Sketcher.Constraint("Coincident", 0, 3, -1, 1),
    Sketcher.Constraint("Diameter", 0, Q("2.3 mm")),
])
pad17 = body43.newObject("PartDesign::Pad", "Pad016")
pad17.Profile = sketch24
pad17.Length = 15
doc.recompute()

boolean38 = body43.newObject("PartDesign::Boolean", "Boolean037")
boolean38.Type = "Fuse"
boolean38.addObjects([body42])
body44 = doc.addObject("PartDesign::Body", "Body043")
doc.recompute()

body43.Placement = App.Placement(Vector(22, 0, 0), App.Rotation(Vector(0, 0, 1), 0))
boolean39 = body44.newObject("PartDesign::Boolean", "Boolean038")
boolean39.Type = "Fuse"
boolean39.addObjects([body43])
body45 = doc.addObject("PartDesign::Body", "Body044")

# Sketch on XZ plane
sketch25 = body45.newObject("Sketcher::SketchObject", "Sketch024")
sketch25.AttachmentSupport = (doc.getObject("XZ_Plane044"), [""])
sketch25.MapMode = "FlatFace"
add_polygon(sketch25, [(0, 0), (2, 0), (1.1, 1.3), (0, 1.3)])  # lines 0-3
sketch25.addConstraint([
    Sketcher.Constraint("Horizontal", 0),
    Sketcher.Constraint("Horizontal", 2),
    Sketcher.Constraint("Vertical", 3),
    Sketcher.Constraint("Coincident", 3, 2, -1, 1),
    Sketcher.Constraint("DistanceX", 0, 1, 0, 2, Q("2 mm")),
    Sketcher.Constraint("DistanceY", 3, 2, 3, 1, Q("1.3 mm")),
    Sketcher.Constraint("DistanceX", 2, 2, 2, 1, Q("1.15 mm")),
])
revolution8 = body45.newObject("PartDesign::Revolution", "Revolution007")
revolution8.Profile = sketch25
revolution8.ReferenceAxis = (sketch25, ["V_Axis"])
revolution8.Angle = 360
body46 = doc.addObject("PartDesign::Body", "Body045")
body46.AllowCompound = True

# Sketch on XY plane
sketch26 = body46.newObject("Sketcher::SketchObject", "Sketch025")
sketch26.AttachmentSupport = (doc.getObject("XY_Plane045"), [""])
sketch26.MapMode = "FlatFace"
sketch26.AttachmentOffset = App.Placement(Vector(0, 0, 1), App.Rotation())
sketch26.addGeometry(Part.Circle(Vector(0, 0, 0), Vector(0, 0, 1), 1.1), False)
sketch26.addConstraint([
    Sketcher.Constraint("Coincident", 0, 3, -1, 1),
    Sketcher.Constraint("Diameter", 0, Q("2.3 mm")),
])
pad18 = body46.newObject("PartDesign::Pad", "Pad017")
pad18.Profile = sketch26
pad18.Length = 15
doc.recompute()

boolean40 = body46.newObject("PartDesign::Boolean", "Boolean039")
boolean40.Type = "Fuse"
boolean40.addObjects([body45])
doc.recompute()

boolean41 = body46.newObject("PartDesign::Boolean", "Boolean040")
boolean41.Type = "Fuse"
boolean41.addObjects([body44])
doc.recompute()

boolean42 = body46.newObject("PartDesign::Boolean", "Boolean041")
boolean42.Type = "Fuse"
boolean42.addObjects([body41])
body47 = doc.addObject("PartDesign::Body", "Body046")
body47.AllowCompound = True
doc.recompute()

body46.Placement = App.Placement(Vector(91.5, 53.5, -3), App.Rotation(Vector(0, 0, 1), 0))
boolean43 = body47.newObject("PartDesign::Boolean", "Boolean042")
boolean43.Type = "Fuse"
boolean43.addObjects([body46])
doc.recompute()

boolean44 = body47.newObject("PartDesign::Boolean", "Boolean043")
boolean44.Type = "Fuse"
boolean44.addObjects([body35])
body48 = doc.addObject("PartDesign::Body", "Body047")

# Sketch on XY plane
sketch27 = body48.newObject("Sketcher::SketchObject", "Sketch026")
sketch27.AttachmentSupport = (doc.getObject("XY_Plane047"), [""])
sketch27.MapMode = "FlatFace"
sketch27.AttachmentOffset = App.Placement(Vector(0, 0, 4), App.Rotation())
add_polygon(sketch27, [(90, 55), (90, 5), (115, 5), (115, 55)])  # lines 0-3
sketch27.addConstraint([
    Sketcher.Constraint("Vertical", 0),
    Sketcher.Constraint("Horizontal", 1),
    Sketcher.Constraint("Vertical", 2),
    Sketcher.Constraint("Horizontal", 3),
    Sketcher.Constraint("DistanceX", 1, 1, 1, 2, Q("25 mm")),
    Sketcher.Constraint("DistanceY", 0, 2, 0, 1, Q("50 mm")),
    Sketcher.Constraint("DistanceX", -1, 1, 0, 2, Q("90 mm")),
    Sketcher.Constraint("DistanceY", -1, 1, 0, 2, Q("5 mm")),
])
pad19 = body48.newObject("PartDesign::Pad", "Pad018")
pad19.Profile = sketch27
pad19.Length = 1
body49 = doc.addObject("PartDesign::Body", "Body048")

# Sketch on XY plane
sketch28 = body49.newObject("Sketcher::SketchObject", "Sketch027")
sketch28.AttachmentSupport = (doc.getObject("XY_Plane048"), [""])
sketch28.MapMode = "FlatFace"
sketch28.AttachmentOffset = App.Placement(Vector(0, 0, 4), App.Rotation())
add_polygon(sketch28, [(60, 55), (60, 5), (85, 5), (85, 55)])  # lines 0-3
sketch28.addConstraint([
    Sketcher.Constraint("Vertical", 0),
    Sketcher.Constraint("Horizontal", 1),
    Sketcher.Constraint("Vertical", 2),
    Sketcher.Constraint("Horizontal", 3),
    Sketcher.Constraint("DistanceX", 1, 1, 1, 2, Q("25 mm")),
    Sketcher.Constraint("DistanceY", 0, 2, 0, 1, Q("50 mm")),
    Sketcher.Constraint("DistanceX", -1, 1, 0, 2, Q("60 mm")),
    Sketcher.Constraint("DistanceY", -1, 1, 0, 2, Q("5 mm")),
])
pad20 = body49.newObject("PartDesign::Pad", "Pad019")
pad20.Profile = sketch28
pad20.Length = 1
body50 = doc.addObject("PartDesign::Body", "Body049")
body50.AllowCompound = True

# Sketch on XY plane
sketch29 = body50.newObject("Sketcher::SketchObject", "Sketch028")
sketch29.AttachmentSupport = (doc.getObject("XY_Plane049"), [""])
sketch29.MapMode = "FlatFace"
add_polygon(sketch29, [(0, 80), (0, 0), (120, 0), (120, 80)])  # lines 0-3
sketch29.addConstraint([
    Sketcher.Constraint("Vertical", 0),
    Sketcher.Constraint("Horizontal", 1),
    Sketcher.Constraint("Vertical", 2),
    Sketcher.Constraint("Horizontal", 3),
    Sketcher.Constraint("Coincident", 0, 2, -1, 1),
    Sketcher.Constraint("DistanceX", 1, 1, 1, 2, Q("120 mm")),
    Sketcher.Constraint("DistanceY", 0, 2, 0, 1, Q("80 mm")),
])
pad21 = body50.newObject("PartDesign::Pad", "Pad020")
pad21.Profile = sketch29
pad21.Length = 45
doc.recompute()

thickness = body50.newObject("PartDesign::Thickness", "Thickness")
thickness.Base = (pad21, faces_at(pad21, [(60, 40, 45)]))
thickness.Value = 3
thickness.Reversed = False
thickness.Join = "Arc"
doc.recompute()

boolean45 = body50.newObject("PartDesign::Boolean", "Boolean044")
boolean45.Type = "Fuse"
boolean45.addObjects([body48])
doc.recompute()

boolean46 = body50.newObject("PartDesign::Boolean", "Boolean045")
boolean46.Type = "Fuse"
boolean46.addObjects([body49])
doc.recompute()

boolean47 = body50.newObject("PartDesign::Boolean", "Boolean046")
boolean47.Type = "Cut"
boolean47.addObjects([body47])
doc.recompute()

boolean48 = body50.newObject("PartDesign::Boolean", "Boolean047")
boolean48.Type = "Cut"
boolean48.addObjects([body23])

doc.recompute()
